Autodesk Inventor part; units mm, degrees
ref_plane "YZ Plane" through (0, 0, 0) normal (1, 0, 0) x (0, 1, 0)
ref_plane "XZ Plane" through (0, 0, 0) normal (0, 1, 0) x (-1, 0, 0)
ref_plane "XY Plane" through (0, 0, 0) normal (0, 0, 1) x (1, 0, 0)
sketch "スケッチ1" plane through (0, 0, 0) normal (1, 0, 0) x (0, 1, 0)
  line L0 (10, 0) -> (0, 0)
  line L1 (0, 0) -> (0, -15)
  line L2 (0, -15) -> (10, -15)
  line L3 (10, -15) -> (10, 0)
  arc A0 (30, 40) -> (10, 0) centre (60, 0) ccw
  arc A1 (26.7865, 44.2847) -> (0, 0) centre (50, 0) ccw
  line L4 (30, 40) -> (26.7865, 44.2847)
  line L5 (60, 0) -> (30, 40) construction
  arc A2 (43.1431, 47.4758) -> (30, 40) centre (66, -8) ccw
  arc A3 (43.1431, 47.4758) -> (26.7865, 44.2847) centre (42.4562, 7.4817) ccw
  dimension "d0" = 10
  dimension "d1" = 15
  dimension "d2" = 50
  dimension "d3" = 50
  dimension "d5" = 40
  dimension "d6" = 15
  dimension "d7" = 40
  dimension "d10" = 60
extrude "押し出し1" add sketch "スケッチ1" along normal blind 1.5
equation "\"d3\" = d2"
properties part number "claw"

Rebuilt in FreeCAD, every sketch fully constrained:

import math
import FreeCAD as App
import Part
import Sketcher

V = App.Vector

doc = App.newDocument("Part")
body = doc.addObject("PartDesign::Body", "Body")

sketch1 = body.newObject("Sketcher::SketchObject", "Sketch")
sketch1.AttachmentSupport = (doc.getObject("YZ_Plane"), [""])
sketch1.MapMode = "FlatFace"
sketch1.addGeometry(Part.LineSegment(V(10, -15, 0), V(10, 0, 0)), False)
sketch1.addGeometry(Part.ArcOfCircle(Part.Circle(V(60, 0, 0), V(0, 0, 1), 50), math.radians(127), math.radians(180)), False)
sketch1.addGeometry(Part.ArcOfCircle(Part.Circle(V(66, -8, 0), V(0, 0, 1), 60), math.radians(112.39), math.radians(126.87)), False)
sketch1.addGeometry(Part.ArcOfCircle(Part.Circle(V(42, 7, 0), V(0, 0, 1), 40), math.radians(89), math.radians(113)), False)
sketch1.addGeometry(Part.ArcOfCircle(Part.Circle(V(50, 0, 0), V(0, 0, 1), 50), math.radians(118), math.radians(180)), False)
sketch1.addGeometry(Part.LineSegment(V(0, 0, 0), V(0, -15, 0)), False)
sketch1.addGeometry(Part.LineSegment(V(0, -15, 0), V(10, -15, 0)), False)
sketch1.addConstraint(Sketcher.Constraint("Tangent", 0, 2, 1, 2))
sketch1.addConstraint(Sketcher.Constraint("Tangent", 1, 1, 2, 2))
sketch1.addConstraint(Sketcher.Constraint("Coincident", 2, 1, 3, 1))
sketch1.addConstraint(Sketcher.Constraint("Coincident", 3, 2, 4, 1))
sketch1.addConstraint(Sketcher.Constraint("Tangent", 4, 2, 5, 1))
sketch1.addConstraint(Sketcher.Constraint("Coincident", 5, 2, 6, 1))
sketch1.addConstraint(Sketcher.Constraint("Coincident", 6, 2, 0, 1))
sketch1.addConstraint(Sketcher.Constraint("Vertical", 0))
sketch1.addConstraint(Sketcher.Constraint("Vertical", 5))
sketch1.addConstraint(Sketcher.Constraint("Horizontal", 6))
sketch1.addConstraint(Sketcher.Constraint("Coincident", 4, 2, -1, 1))
sketch1.addConstraint(Sketcher.Constraint("Equal", 1, 4))
sketch1.addConstraint(Sketcher.Constraint("PointOnObject", 1, 3, -1))
sketch1.addConstraint(Sketcher.Constraint("Radius", 1, 50.0))
sketch1.addConstraint(Sketcher.Constraint("Radius", 3, 40.0))
sketch1.addConstraint(Sketcher.Constraint("DistanceX", 6, 1, 6, 2, 10.0))
sketch1.addConstraint(Sketcher.Constraint("DistanceY", 0, 1, 0, 2, 15.0))
sketch1.addConstraint(Sketcher.Constraint("DistanceY", -1, 1, 1, 1, 40.0))
sketch1.addConstraint(Sketcher.Constraint("Radius", 2, 59.9988))
sketch1.addConstraint(Sketcher.Constraint("DistanceX", -1, 1, 2, 1, 43.143))
sketch1.addConstraint(Sketcher.Constraint("DistanceX", 3, 3, 2, 1, 0.687))
pad1 = body.newObject("PartDesign::Pad", "Pad")
pad1.Profile = sketch1
pad1.Length = 1.5

doc.recompute()
